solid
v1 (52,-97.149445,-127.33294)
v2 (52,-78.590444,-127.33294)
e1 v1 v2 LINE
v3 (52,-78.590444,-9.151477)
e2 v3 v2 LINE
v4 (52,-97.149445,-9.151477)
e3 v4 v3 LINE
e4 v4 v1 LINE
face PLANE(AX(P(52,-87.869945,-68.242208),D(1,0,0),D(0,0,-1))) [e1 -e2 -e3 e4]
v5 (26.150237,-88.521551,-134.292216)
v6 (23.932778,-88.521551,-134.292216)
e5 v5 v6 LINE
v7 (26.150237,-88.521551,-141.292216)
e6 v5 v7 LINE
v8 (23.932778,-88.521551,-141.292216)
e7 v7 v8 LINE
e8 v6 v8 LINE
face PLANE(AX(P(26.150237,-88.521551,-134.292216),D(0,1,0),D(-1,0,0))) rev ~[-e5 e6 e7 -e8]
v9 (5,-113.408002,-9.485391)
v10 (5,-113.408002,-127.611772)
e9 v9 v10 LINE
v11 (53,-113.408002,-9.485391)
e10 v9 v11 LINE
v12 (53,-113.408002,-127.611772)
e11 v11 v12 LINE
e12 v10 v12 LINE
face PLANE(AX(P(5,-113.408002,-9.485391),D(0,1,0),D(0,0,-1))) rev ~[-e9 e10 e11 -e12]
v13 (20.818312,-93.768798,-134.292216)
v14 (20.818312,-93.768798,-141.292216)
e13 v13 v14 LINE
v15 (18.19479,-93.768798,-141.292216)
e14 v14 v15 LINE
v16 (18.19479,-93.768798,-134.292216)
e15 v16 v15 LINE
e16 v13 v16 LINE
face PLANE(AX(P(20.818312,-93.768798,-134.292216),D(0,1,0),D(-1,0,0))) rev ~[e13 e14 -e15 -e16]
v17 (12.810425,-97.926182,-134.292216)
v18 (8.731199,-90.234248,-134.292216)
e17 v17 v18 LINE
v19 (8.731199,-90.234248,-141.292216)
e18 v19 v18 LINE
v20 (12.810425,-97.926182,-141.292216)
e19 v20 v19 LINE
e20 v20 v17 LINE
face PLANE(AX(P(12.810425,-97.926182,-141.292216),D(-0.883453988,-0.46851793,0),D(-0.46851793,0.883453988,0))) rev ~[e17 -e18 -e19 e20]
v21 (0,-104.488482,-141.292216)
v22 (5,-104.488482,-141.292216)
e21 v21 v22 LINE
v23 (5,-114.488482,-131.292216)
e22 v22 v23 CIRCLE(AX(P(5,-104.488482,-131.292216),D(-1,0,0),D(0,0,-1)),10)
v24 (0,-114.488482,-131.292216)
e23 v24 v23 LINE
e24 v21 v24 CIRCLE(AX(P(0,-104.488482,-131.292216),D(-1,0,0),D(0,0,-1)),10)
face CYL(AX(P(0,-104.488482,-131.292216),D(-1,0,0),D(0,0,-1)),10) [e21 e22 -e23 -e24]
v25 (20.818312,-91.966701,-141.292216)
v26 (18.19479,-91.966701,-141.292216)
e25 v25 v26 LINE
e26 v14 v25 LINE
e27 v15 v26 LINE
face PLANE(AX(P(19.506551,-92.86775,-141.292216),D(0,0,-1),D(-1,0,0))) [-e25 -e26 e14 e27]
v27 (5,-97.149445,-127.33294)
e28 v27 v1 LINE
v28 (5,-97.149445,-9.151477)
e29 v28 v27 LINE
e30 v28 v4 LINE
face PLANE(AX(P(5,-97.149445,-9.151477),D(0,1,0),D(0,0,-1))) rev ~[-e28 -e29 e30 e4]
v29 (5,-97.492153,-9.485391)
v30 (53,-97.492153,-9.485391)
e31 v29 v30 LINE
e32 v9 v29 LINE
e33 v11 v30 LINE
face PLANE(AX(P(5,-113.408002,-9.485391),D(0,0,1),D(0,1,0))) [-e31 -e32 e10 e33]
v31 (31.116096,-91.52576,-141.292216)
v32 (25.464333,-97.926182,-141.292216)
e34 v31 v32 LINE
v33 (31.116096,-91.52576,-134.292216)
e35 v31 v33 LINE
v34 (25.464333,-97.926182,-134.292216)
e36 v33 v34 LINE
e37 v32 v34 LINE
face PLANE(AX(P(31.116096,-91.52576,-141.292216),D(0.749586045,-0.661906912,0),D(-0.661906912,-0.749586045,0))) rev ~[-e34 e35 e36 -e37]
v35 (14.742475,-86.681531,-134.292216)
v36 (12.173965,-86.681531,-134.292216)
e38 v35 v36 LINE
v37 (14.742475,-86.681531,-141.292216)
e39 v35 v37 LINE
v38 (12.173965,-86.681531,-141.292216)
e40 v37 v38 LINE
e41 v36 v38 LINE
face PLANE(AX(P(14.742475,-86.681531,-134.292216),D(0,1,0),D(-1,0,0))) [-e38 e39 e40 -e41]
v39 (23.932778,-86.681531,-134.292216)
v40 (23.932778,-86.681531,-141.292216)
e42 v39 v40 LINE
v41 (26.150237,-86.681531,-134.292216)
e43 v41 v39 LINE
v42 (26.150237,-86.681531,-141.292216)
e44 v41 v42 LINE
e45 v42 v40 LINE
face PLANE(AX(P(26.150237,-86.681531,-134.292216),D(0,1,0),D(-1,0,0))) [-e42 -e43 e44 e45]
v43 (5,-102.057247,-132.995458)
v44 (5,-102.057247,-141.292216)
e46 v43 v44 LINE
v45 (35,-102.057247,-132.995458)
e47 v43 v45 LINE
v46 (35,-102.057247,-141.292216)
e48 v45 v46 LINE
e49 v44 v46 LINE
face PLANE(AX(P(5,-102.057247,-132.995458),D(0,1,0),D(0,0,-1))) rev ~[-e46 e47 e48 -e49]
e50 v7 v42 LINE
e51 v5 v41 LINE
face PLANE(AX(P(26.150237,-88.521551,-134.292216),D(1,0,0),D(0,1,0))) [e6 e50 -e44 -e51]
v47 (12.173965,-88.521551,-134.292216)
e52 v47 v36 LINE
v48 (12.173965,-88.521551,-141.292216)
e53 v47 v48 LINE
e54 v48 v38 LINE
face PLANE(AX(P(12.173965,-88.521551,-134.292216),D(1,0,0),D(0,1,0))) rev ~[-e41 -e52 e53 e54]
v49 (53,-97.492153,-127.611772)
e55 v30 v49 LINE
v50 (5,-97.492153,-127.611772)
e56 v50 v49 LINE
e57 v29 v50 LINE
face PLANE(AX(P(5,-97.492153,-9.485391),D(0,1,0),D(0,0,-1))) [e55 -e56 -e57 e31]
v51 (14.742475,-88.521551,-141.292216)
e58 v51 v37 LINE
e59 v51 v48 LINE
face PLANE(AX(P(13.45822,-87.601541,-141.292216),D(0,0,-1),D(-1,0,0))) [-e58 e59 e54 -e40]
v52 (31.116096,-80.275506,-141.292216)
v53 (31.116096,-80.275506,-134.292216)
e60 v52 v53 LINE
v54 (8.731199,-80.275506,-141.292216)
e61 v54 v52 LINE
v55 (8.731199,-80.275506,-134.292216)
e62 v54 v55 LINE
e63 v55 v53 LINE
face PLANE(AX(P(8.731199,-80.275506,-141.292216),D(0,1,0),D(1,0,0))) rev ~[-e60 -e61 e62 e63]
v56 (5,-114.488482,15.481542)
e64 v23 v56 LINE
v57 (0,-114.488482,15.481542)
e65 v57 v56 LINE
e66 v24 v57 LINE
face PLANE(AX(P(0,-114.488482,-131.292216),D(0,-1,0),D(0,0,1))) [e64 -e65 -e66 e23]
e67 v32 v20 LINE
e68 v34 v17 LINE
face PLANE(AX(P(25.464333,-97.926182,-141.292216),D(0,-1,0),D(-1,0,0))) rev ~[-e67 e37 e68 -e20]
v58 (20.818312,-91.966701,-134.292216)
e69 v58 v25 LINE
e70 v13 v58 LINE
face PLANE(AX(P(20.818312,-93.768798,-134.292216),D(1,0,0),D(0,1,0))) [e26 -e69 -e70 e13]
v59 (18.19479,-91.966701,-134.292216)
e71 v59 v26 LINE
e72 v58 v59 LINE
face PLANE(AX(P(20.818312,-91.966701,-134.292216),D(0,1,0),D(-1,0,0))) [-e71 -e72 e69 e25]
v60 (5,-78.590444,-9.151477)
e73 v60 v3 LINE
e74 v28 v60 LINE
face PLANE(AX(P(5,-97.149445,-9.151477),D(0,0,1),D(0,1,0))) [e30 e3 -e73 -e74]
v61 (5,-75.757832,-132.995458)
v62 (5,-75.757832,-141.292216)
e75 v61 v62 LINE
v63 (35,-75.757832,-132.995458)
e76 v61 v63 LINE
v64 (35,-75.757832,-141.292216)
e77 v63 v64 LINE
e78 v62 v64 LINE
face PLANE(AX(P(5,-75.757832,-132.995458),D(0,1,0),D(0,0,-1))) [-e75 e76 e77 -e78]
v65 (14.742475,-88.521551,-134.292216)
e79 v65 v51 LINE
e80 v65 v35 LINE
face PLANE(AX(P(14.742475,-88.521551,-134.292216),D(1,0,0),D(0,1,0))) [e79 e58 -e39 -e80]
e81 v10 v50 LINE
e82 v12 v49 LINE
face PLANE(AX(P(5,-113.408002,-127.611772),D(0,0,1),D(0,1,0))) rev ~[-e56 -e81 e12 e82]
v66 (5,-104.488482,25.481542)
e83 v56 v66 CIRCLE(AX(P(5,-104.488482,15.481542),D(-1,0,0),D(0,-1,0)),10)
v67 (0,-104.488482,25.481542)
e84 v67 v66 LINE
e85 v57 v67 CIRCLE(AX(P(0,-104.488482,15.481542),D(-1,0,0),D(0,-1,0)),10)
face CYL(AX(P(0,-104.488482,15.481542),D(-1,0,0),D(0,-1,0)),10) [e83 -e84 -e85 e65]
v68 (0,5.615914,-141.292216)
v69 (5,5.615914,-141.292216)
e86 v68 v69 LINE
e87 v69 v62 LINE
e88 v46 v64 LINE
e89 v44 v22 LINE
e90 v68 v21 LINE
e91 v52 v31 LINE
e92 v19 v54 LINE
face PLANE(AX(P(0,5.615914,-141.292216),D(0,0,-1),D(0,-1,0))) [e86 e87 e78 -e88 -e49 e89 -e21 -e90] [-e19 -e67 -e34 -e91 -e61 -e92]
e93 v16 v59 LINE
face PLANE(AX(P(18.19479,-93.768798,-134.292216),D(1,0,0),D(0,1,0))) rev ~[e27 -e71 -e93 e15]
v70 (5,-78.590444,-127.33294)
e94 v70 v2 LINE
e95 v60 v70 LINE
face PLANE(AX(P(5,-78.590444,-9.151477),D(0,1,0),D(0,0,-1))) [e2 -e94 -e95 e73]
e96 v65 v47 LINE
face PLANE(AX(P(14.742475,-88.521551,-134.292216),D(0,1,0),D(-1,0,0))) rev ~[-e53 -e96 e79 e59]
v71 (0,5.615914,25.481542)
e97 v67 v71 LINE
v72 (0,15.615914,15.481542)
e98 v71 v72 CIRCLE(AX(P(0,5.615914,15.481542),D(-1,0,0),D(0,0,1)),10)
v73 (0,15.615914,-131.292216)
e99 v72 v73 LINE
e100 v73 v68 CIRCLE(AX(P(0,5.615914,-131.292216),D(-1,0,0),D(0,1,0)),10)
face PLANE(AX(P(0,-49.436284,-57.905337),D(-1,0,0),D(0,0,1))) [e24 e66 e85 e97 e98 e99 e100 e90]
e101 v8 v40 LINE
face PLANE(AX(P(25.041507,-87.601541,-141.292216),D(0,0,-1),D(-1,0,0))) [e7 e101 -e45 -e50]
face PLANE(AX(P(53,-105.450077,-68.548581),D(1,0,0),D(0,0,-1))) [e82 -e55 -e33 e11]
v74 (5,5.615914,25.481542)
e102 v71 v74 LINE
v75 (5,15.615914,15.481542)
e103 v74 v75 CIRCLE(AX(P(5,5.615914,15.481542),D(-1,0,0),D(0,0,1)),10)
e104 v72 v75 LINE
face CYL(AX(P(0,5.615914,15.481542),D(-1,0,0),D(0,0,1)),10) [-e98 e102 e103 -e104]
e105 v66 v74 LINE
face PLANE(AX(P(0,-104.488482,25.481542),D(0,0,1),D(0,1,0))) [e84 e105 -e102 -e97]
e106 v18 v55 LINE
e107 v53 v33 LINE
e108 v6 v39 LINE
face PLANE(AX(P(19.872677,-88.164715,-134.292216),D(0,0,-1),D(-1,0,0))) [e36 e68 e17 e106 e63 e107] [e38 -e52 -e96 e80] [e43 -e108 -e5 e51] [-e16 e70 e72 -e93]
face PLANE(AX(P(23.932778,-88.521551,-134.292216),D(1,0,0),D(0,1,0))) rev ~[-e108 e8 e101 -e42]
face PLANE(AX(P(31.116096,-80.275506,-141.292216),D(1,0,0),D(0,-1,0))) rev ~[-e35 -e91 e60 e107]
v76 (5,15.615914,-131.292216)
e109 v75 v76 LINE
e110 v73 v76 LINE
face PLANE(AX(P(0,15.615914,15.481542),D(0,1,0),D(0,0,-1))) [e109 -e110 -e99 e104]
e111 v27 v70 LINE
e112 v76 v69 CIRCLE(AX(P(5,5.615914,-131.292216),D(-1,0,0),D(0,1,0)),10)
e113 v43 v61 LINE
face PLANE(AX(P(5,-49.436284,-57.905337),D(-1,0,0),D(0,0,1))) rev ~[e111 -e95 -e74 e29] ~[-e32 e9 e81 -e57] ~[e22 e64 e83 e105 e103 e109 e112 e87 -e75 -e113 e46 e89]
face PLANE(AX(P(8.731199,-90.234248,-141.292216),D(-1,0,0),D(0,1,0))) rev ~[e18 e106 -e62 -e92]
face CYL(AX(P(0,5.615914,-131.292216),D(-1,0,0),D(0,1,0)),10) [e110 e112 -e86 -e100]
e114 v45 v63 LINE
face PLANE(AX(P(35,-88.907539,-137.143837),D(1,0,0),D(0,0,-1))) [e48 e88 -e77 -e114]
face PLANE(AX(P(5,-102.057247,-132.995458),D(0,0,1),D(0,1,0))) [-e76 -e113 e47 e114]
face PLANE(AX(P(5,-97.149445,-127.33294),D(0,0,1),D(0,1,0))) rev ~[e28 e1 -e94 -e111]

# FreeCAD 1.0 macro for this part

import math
import FreeCAD as App
import Part
import Sketcher
from FreeCAD import Vector


def add_polygon(sketch, points):
    """Adds a closed chain of lines whose ends are joined by coincident constraints."""
    first, n = sketch.GeometryCount, len(points)
    for a, b in zip(points, points[1:] + points[:1]):
        sketch.addGeometry(Part.LineSegment(App.Vector(*a, 0), App.Vector(*b, 0)), False)
    for i in range(n):
        sketch.addConstraint(Sketcher.Constraint("Coincident", first + i, 2, first + (i + 1) % n, 1))

doc = App.newDocument("Part")
params = doc.addObject("Spreadsheet::Sheet", "Params")
for row, (alias, value) in enumerate([
    ("sketch1_radius", "10 mm"),
    ("pad1_length", "5 mm"),
    ("pad2_length", "47 mm"),
    ("pad3_length", "48 mm"),
    ("pad4_length", "30 mm"),
    ("pocket1_length", "7 mm"),
    ("pad5_length", "7 mm"),
], start=1):
    params.set(f"A{row}", alias)
    params.set(f"B{row}", "=" + value)
    params.setAlias(f"B{row}", alias)

body = doc.addObject("PartDesign::Body", "Body")

# Sketch on YZ plane
sketch1 = doc.addObject("Sketcher::SketchObject", "Sketch")
body.addObject(sketch1)
sketch1.AttachmentSupport = (doc.YZ_Plane, [""])
sketch1.MapMode = "FlatFace"
sketch1.addGeometry([
    Part.LineSegment(Vector(16, -131, 0), Vector(16, 15, 0)),  # 0
    Part.ArcOfCircle(Part.Circle(Vector(6, 15, 0), Vector(0, 0, 1), 10), math.radians(0), math.radians(90)),  # 1
    Part.LineSegment(Vector(6, 25, 0), Vector(-104, 25, 0)),  # 2
    Part.ArcOfCircle(Part.Circle(Vector(-104, 15, 0), Vector(0, 0, 1), 10), math.radians(90), math.radians(180)),  # 3
    Part.LineSegment(Vector(-114, 15, 0), Vector(-114, -131, 0)),  # 4
    Part.ArcOfCircle(Part.Circle(Vector(-104, -131, 0), Vector(0, 0, 1), 10), math.radians(180), math.radians(270)),  # 5
    Part.LineSegment(Vector(-104, -141, 0), Vector(6, -141, 0)),  # 6
    Part.ArcOfCircle(Part.Circle(Vector(6, -131, 0), Vector(0, 0, 1), 10), math.radians(-90), math.radians(0)),  # 7
], False)
sketch1.addConstraint([
    Sketcher.Constraint("Tangent", 0, 2, 1, 1),
    Sketcher.Constraint("Tangent", 1, 2, 2, 1),
    Sketcher.Constraint("Tangent", 2, 2, 3, 1),
    Sketcher.Constraint("Tangent", 3, 2, 4, 1),
    Sketcher.Constraint("Tangent", 4, 2, 5, 1),
    Sketcher.Constraint("Tangent", 5, 2, 6, 1),
    Sketcher.Constraint("Tangent", 6, 2, 7, 1),
    Sketcher.Constraint("Tangent", 7, 2, 0, 1),
    Sketcher.Constraint("Vertical", 0),
    Sketcher.Constraint("Horizontal", 2),
    Sketcher.Constraint("Vertical", 4),
    Sketcher.Constraint("Horizontal", 6),
    Sketcher.Constraint("Equal", 1, 3),
    Sketcher.Constraint("Equal", 3, 5),
    Sketcher.Constraint("Equal", 5, 7),
    Sketcher.Constraint("Radius", 1, 10.0),
    Sketcher.Constraint("DistanceY", 0, 1, 0, 2, 146.773758),
    Sketcher.Constraint("DistanceX", 2, 2, 2, 1, 110.104396),
    Sketcher.Constraint("DistanceY", -1, 1, 1, 3, 15.481542),
    Sketcher.Constraint("DistanceX", 3, 3, -1, 1, 104.488482),
])
sketch1.setExpression("Constraints[15]", "Params.sketch1_radius")
pad1 = doc.addObject("PartDesign::Pad", "Pad")
body.addObject(pad1)
pad1.Profile = sketch1
pad1.setExpression("Length", "Params.pad1_length")

# Sketch on YZ plane
sketch2 = doc.addObject("Sketcher::SketchObject", "Sketch001")
body.addObject(sketch2)
sketch2.AttachmentSupport = (doc.YZ_Plane, [""])
sketch2.MapMode = "FlatFace"
sketch2.AttachmentOffset = App.Placement(Vector(0, 0, 5), App.Rotation())
add_polygon(sketch2, [(-79, -9), (-97, -9), (-97, -127), (-79, -127)])  # lines 0-3
sketch2.addConstraint([
    Sketcher.Constraint("Horizontal", 0),
    Sketcher.Constraint("Vertical", 1),
    Sketcher.Constraint("Horizontal", 2),
    Sketcher.Constraint("Vertical", 3),
    Sketcher.Constraint("DistanceX", 0, 2, 0, 1, 18.559001),
    Sketcher.Constraint("DistanceY", 1, 2, 1, 1, 118.181462),
    Sketcher.Constraint("DistanceY", 1, 2, -1, 1, 127.33294),
    Sketcher.Constraint("DistanceX", 0, 2, -1, 1, 97.149445),
])
pad2 = doc.addObject("PartDesign::Pad", "Pad001")
body.addObject(pad2)
pad2.Profile = sketch2
pad2.setExpression("Length", "Params.pad2_length")

# Sketch on YZ plane
sketch3 = doc.addObject("Sketcher::SketchObject", "Sketch002")
body.addObject(sketch3)
sketch3.AttachmentSupport = (doc.YZ_Plane, [""])
sketch3.MapMode = "FlatFace"
sketch3.AttachmentOffset = App.Placement(Vector(0, 0, 5), App.Rotation())
add_polygon(sketch3, [(-97, -9), (-113, -9), (-113, -128), (-97, -128)])  # lines 0-3
sketch3.addConstraint([
    Sketcher.Constraint("Horizontal", 0),
    Sketcher.Constraint("Vertical", 1),
    Sketcher.Constraint("Horizontal", 2),
    Sketcher.Constraint("Vertical", 3),
    Sketcher.Constraint("DistanceX", 0, 2, -1, 1, 113.408002),
    Sketcher.Constraint("DistanceX", 0, 2, 0, 1, 15.915849),
    Sketcher.Constraint("DistanceY", 1, 2, 1, 1, 118.126381),
    Sketcher.Constraint("DistanceY", 0, 2, -1, 1, 9.485391),
])
pad3 = doc.addObject("PartDesign::Pad", "Pad002")
body.addObject(pad3)
pad3.Profile = sketch3
pad3.setExpression("Length", "Params.pad3_length")

# Sketch on YZ plane
sketch4 = doc.addObject("Sketcher::SketchObject", "Sketch003")
body.addObject(sketch4)
sketch4.AttachmentSupport = (doc.YZ_Plane, [""])
sketch4.MapMode = "FlatFace"
sketch4.AttachmentOffset = App.Placement(Vector(0, 0, 5), App.Rotation())
add_polygon(sketch4, [(-76, -133), (-102, -133), (-102, -141), (-76, -141)])  # lines 0-3
sketch4.addConstraint([
    Sketcher.Constraint("Horizontal", 0),
    Sketcher.Constraint("Vertical", 1),
    Sketcher.Constraint("Horizontal", 2),
    Sketcher.Constraint("Vertical", 3),
    Sketcher.Constraint("DistanceY", 1, 2, 1, 1, 8.296759),
    Sketcher.Constraint("DistanceX", 0, 2, 0, 1, 26.299415),
    Sketcher.Constraint("DistanceX", 2, 2, -1, 1, 75.757832),
    Sketcher.Constraint("DistanceY", 0, 2, -1, 1, 132.995458),
])
pad4 = doc.addObject("PartDesign::Pad", "Pad003")
body.addObject(pad4)
pad4.Profile = sketch4
pad4.setExpression("Length", "Params.pad4_length")

# Sketch on XY plane
sketch5 = doc.addObject("Sketcher::SketchObject", "Sketch004")
body.addObject(sketch5)
sketch5.AttachmentSupport = (doc.XY_Plane, [""])
sketch5.MapMode = "FlatFace"
sketch5.AttachmentOffset = App.Placement(Vector(0, 0, -141.292216), App.Rotation())
add_polygon(sketch5, [(25, -98), (13, -98), (9, -90), (9, -80), (31, -80), (31, -92)])  # lines 0-5
sketch5.addConstraint([
    Sketcher.Constraint("Horizontal", 0),
    Sketcher.Constraint("Vertical", 2),
    Sketcher.Constraint("Horizontal", 3),
    Sketcher.Constraint("Vertical", 4),
    Sketcher.Constraint("DistanceY", 2, 1, 2, 2, 9.958741),
    Sketcher.Constraint("DistanceX", -1, 1, 1, 2, 8.731199),
    Sketcher.Constraint("Distance", 1, 8.706661),
    Sketcher.Constraint("DistanceX", 0, 2, 0, 1, 12.653907),
    Sketcher.Constraint("DistanceX", 3, 1, 3, 2, 22.384897),
    Sketcher.Constraint("DistanceY", 4, 2, 4, 1, 11.250254),
    Sketcher.Constraint("DistanceY", 0, 2, -1, 1, 97.926182),
    Sketcher.Constraint("DistanceY", 4, 2, -1, 1, 91.52576),
])
pocket1 = doc.addObject("PartDesign::Pocket", "Pocket")
body.addObject(pocket1)
pocket1.Profile = sketch5
pocket1.setExpression("Length", "Params.pocket1_length")
pocket1.Reversed = True

# Sketch on XY plane
sketch6 = doc.addObject("Sketcher::SketchObject", "Sketch005")
body.addObject(sketch6)
sketch6.AttachmentSupport = (doc.XY_Plane, [""])
sketch6.MapMode = "FlatFace"
sketch6.AttachmentOffset = App.Placement(Vector(0, 0, -134.292216), App.Rotation())
add_polygon(sketch6, [(26.2, -86.7), (26.2, -88.5), (23.9, -88.5), (23.9, -86.7)])  # lines 0-3
add_polygon(sketch6, [(14.7, -86.7), (14.7, -88.5), (12.2, -88.5), (12.2, -86.7)])  # lines 4-7
add_polygon(sketch6, [(20.8, -92), (20.8, -93.8), (18.2, -93.8), (18.2, -92)])  # lines 8-11
sketch6.addConstraint([
    Sketcher.Constraint("Vertical", 0),
    Sketcher.Constraint("Horizontal", 1),
    Sketcher.Constraint("Vertical", 2),
    Sketcher.Constraint("Horizontal", 3),
    Sketcher.Constraint("Vertical", 4),
    Sketcher.Constraint("Horizontal", 5),
    Sketcher.Constraint("Vertical", 6),
    Sketcher.Constraint("Horizontal", 7),
    Sketcher.Constraint("Vertical", 8),
    Sketcher.Constraint("Horizontal", 9),
    Sketcher.Constraint("Vertical", 10),
    Sketcher.Constraint("Horizontal", 11),
    Sketcher.Constraint("Horizontal", 1, 2, 4, 2),
    Sketcher.Constraint("Horizontal", 3, 2, 6, 2),
    Sketcher.Constraint("DistanceX", 1, 2, 1, 1, 2.217459),
    Sketcher.Constraint("DistanceX", 5, 2, 5, 1, 2.56851),
    Sketcher.Constraint("DistanceY", 0, 2, 0, 1, 1.84002),
    Sketcher.Constraint("DistanceY", 8, 2, -1, 1, 93.768798),
    Sketcher.Constraint("DistanceY", 10, 2, -1, 1, 91.966701),
    Sketcher.Constraint("DistanceX", 9, 2, 9, 1, 2.623522),
    Sketcher.Constraint("DistanceY", 0, 2, -1, 1, 88.521551),
    Sketcher.Constraint("DistanceX", -1, 1, 9, 2, 18.19479),
    Sketcher.Constraint("DistanceX", -1, 1, 0, 2, 26.150237),
    Sketcher.Constraint("DistanceX", -1, 1, 4, 2, 14.742475),
])
pad5 = doc.addObject("PartDesign::Pad", "Pad004")
body.addObject(pad5)
pad5.Profile = sketch6
pad5.setExpression("Length", "Params.pad5_length")
pad5.Reversed = True

doc.recompute()
